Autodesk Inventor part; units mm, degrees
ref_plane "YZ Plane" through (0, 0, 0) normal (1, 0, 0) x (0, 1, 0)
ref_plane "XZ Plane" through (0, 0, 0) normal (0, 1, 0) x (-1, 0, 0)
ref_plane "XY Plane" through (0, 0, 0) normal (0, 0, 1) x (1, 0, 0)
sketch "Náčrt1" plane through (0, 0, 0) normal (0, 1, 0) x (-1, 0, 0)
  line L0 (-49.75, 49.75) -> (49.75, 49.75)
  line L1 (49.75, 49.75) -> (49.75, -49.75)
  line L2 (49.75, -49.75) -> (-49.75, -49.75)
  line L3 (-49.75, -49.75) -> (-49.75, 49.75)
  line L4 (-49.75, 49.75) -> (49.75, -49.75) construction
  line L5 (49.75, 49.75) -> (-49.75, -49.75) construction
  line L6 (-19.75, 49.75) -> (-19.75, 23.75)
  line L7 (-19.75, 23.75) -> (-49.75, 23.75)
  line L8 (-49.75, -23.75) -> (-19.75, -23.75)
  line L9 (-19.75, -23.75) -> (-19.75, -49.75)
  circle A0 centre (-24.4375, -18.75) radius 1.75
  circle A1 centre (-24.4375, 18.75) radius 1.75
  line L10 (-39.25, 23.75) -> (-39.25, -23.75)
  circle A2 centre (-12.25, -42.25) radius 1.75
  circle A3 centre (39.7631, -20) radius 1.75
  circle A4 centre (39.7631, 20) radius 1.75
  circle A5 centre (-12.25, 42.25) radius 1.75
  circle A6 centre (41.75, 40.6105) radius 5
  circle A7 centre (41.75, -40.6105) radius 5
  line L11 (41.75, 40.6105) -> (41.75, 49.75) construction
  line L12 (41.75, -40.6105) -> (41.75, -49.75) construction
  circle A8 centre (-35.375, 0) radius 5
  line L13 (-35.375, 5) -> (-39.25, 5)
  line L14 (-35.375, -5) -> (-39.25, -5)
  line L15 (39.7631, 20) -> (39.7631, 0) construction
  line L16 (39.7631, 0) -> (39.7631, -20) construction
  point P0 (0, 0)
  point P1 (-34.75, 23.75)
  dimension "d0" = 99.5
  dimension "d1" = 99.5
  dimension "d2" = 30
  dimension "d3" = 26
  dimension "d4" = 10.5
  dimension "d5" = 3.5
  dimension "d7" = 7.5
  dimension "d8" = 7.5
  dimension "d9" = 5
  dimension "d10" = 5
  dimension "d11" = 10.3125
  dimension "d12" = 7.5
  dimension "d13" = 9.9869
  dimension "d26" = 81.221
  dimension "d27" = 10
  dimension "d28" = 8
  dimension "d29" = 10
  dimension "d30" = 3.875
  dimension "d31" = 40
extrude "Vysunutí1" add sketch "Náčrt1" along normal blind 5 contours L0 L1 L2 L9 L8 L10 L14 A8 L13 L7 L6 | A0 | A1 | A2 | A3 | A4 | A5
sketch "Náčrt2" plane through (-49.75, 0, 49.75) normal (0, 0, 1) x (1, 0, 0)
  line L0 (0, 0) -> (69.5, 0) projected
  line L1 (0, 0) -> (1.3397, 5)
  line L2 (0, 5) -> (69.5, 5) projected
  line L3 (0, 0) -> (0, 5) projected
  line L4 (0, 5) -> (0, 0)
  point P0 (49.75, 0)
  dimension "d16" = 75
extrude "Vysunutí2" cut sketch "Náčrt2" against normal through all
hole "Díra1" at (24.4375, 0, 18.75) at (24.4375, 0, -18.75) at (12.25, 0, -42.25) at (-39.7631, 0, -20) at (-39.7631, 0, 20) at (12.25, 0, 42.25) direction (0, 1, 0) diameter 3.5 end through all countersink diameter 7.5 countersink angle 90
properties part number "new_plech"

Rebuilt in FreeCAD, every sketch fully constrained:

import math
import FreeCAD as App
import Part
import Sketcher

V = App.Vector
Q = App.Units.Quantity


def add_polygon(sketch, points):
    """Adds a closed chain of lines whose ends are joined by coincident constraints."""
    first, n = sketch.GeometryCount, len(points)
    for a, b in zip(points, points[1:] + points[:1]):
        sketch.addGeometry(Part.LineSegment(App.Vector(*a, 0), App.Vector(*b, 0)), False)
    for i in range(n):
        sketch.addConstraint(Sketcher.Constraint("Coincident", first + i, 2, first + (i + 1) % n, 1))

doc = App.newDocument("Part")
body = doc.addObject("PartDesign::Body", "Body")

sketch1 = body.newObject("Sketcher::SketchObject", "Sketch")
sketch1.AttachmentSupport = (doc.getObject("XZ_Plane"), [""])
sketch1.MapMode = "FlatFace"
sketch1.addGeometry([
    Part.LineSegment(V(-49.75, 49.75, 0), V(19.75, 49.75, 0)),
    Part.LineSegment(V(19.75, 49.75, 0), V(19.75, 23.75, 0)),
    Part.LineSegment(V(19.75, 23.75, 0), V(39.25, 23.75, 0)),
    Part.LineSegment(V(39.25, 23.75, 0), V(39.25, 5, 0)),
    Part.LineSegment(V(39.25, 5, 0), V(35.375, 5, 0)),
    Part.ArcOfCircle(Part.Circle(V(35.375, 0, 0), V(0, 0, 1), 5), math.radians(90), math.radians(270)),
    Part.LineSegment(V(35.375, -5, 0), V(39.25, -5, 0)),
    Part.LineSegment(V(39.25, -5, 0), V(39.25, -23.75, 0)),
    Part.LineSegment(V(39.25, -23.75, 0), V(19.75, -23.75, 0)),
    Part.LineSegment(V(19.75, -23.75, 0), V(19.75, -49.75, 0)),
    Part.LineSegment(V(19.75, -49.75, 0), V(-49.75, -49.75, 0)),
    Part.LineSegment(V(-49.75, -49.75, 0), V(-49.75, 49.75, 0)),
    Part.Circle(V(-41.75, -40.6105, 0), V(0, 0, 1), 5),
    Part.Circle(V(-41.75, 40.6105, 0), V(0, 0, 1), 5),
], False)
sketch1.addConstraint([
    Sketcher.Constraint("Coincident", 0, 2, 1, 1),
    Sketcher.Constraint("Coincident", 1, 2, 2, 1),
    Sketcher.Constraint("Coincident", 2, 2, 3, 1),
    Sketcher.Constraint("Coincident", 3, 2, 4, 1),
    Sketcher.Constraint("Tangent", 4, 2, 5, 1),
    Sketcher.Constraint("Tangent", 5, 2, 6, 1),
    Sketcher.Constraint("Coincident", 6, 2, 7, 1),
    Sketcher.Constraint("Coincident", 7, 2, 8, 1),
    Sketcher.Constraint("Coincident", 8, 2, 9, 1),
    Sketcher.Constraint("Coincident", 9, 2, 10, 1),
    Sketcher.Constraint("Coincident", 10, 2, 11, 1),
    Sketcher.Constraint("Coincident", 11, 2, 0, 1),
    Sketcher.Constraint("Horizontal", 0),
    Sketcher.Constraint("Vertical", 1),
    Sketcher.Constraint("Horizontal", 2),
    Sketcher.Constraint("Vertical", 3),
    Sketcher.Constraint("Horizontal", 4),
    Sketcher.Constraint("Horizontal", 6),
    Sketcher.Constraint("Vertical", 7),
    Sketcher.Constraint("Horizontal", 8),
    Sketcher.Constraint("Vertical", 9),
    Sketcher.Constraint("Horizontal", 10),
    Sketcher.Constraint("Vertical", 11),
    Sketcher.Constraint("Equal", 5, 12),
    Sketcher.Constraint("Equal", 12, 13),
    Sketcher.Constraint("Symmetric", 12, 3, 13, 3, -1),
    Sketcher.Constraint("Symmetric", 3, 2, 6, 2, -1),
    Sketcher.Constraint("Symmetric", 1, 2, 8, 2, -1),
    Sketcher.Constraint("Equal", 1, 9),
    Sketcher.Constraint("Diameter", 12, 10.0),
    Sketcher.Constraint("DistanceY", 1, 2, 1, 1, 26.0),
    Sketcher.Constraint("DistanceY", 11, 1, 11, 2, 99.5),
    Sketcher.Constraint("DistanceX", 10, 2, 12, 3, 8.0),
    Sketcher.Constraint("DistanceX", 4, 2, 4, 1, 3.875),
    Sketcher.Constraint("DistanceX", 0, 1, 0, 2, 69.5),
    Sketcher.Constraint("DistanceX", 2, 1, 2, 2, 19.5),
    Sketcher.Constraint("DistanceY", 12, 3, 13, 3, 81.221),
    Sketcher.Constraint("DistanceX", 12, 3, -1, 1, 41.75),
])
pad1 = body.newObject("PartDesign::Pad", "Pad")
pad1.Profile = sketch1
pad1.Length = 5
pad1.Reversed = True

sketch2 = body.newObject("Sketcher::SketchObject", "Sketch001")
sketch2.AttachmentSupport = (doc.getObject("XY_Plane"), [""])
sketch2.MapMode = "FlatFace"
sketch2.AttachmentOffset = App.Placement(V(0, 0, 49.75), App.Rotation())
add_polygon(sketch2, [(-49.75, 5), (-49.75, 0), (-48.4103, 5)])
sketch2.addConstraint([
    Sketcher.Constraint("Vertical", 0),
    Sketcher.Constraint("Horizontal", 2),
    Sketcher.Constraint("PointOnObject", 0, 2, -1),
    Sketcher.Constraint("Angle", 1, Q("75.0005 deg")),
    Sketcher.Constraint("DistanceY", 0, 2, 0, 1, 5.0),
    Sketcher.Constraint("DistanceX", 0, 2, -1, 1, 49.75),
])
pocket1 = body.newObject("PartDesign::Pocket", "Pocket")
pocket1.Profile = sketch2
pocket1.Type = "ThroughAll"

sketch3 = body.newObject("Sketcher::SketchObject", "Sketch002")
sketch3.AttachmentSupport = (doc.getObject("XZ_Plane"), [""])
sketch3.MapMode = "FlatFace"
sketch3.addGeometry([
    Part.Circle(V(24.4375, 18.75, 0), V(0, 0, 1), 1.75),
    Part.Circle(V(24.4375, -18.75, 0), V(0, 0, 1), 1.75),
    Part.Circle(V(12.25, -42.25, 0), V(0, 0, 1), 1.75),
    Part.Circle(V(-39.7631, -20, 0), V(0, 0, 1), 1.75),
    Part.Circle(V(-39.7631, 20, 0), V(0, 0, 1), 1.75),
    Part.Circle(V(12.25, 42.25, 0), V(0, 0, 1), 1.75),
], False)
sketch3.addConstraint([
    Sketcher.Constraint("Equal", 0, 1),
    Sketcher.Constraint("Equal", 1, 2),
    Sketcher.Constraint("Equal", 2, 3),
    Sketcher.Constraint("Equal", 3, 4),
    Sketcher.Constraint("Equal", 4, 5),
    Sketcher.Constraint("Symmetric", 0, 3, 1, 3, -1),
    Sketcher.Constraint("Symmetric", 3, 3, 4, 3, -1),
    Sketcher.Constraint("Symmetric", 2, 3, 5, 3, -1),
    Sketcher.Constraint("Diameter", 0, 3.5),
    Sketcher.Constraint("DistanceY", 3, 3, -1, 1, 20.0),
    Sketcher.Constraint("DistanceY", 2, 3, 0, 3, 61.0),
    Sketcher.Constraint("DistanceY", 1, 3, 0, 3, 37.5),
    Sketcher.Constraint("DistanceX", -1, 1, 2, 3, 12.25),
    Sketcher.Constraint("DistanceX", 3, 3, -1, 1, 39.763),
    Sketcher.Constraint("DistanceX", -1, 1, 0, 3, 24.4375),
])
doc.recompute()
hole = body.newObject("PartDesign::Hole", "Hole")
hole.Profile = sketch3
hole.ThreadType = "None"
hole.Diameter = 3.5
hole.DepthType = "ThroughAll"
hole.HoleCutType = "Countersink"
hole.HoleCutDiameter = 7.5
hole.HoleCutCountersinkAngle = 90

doc.recompute()
